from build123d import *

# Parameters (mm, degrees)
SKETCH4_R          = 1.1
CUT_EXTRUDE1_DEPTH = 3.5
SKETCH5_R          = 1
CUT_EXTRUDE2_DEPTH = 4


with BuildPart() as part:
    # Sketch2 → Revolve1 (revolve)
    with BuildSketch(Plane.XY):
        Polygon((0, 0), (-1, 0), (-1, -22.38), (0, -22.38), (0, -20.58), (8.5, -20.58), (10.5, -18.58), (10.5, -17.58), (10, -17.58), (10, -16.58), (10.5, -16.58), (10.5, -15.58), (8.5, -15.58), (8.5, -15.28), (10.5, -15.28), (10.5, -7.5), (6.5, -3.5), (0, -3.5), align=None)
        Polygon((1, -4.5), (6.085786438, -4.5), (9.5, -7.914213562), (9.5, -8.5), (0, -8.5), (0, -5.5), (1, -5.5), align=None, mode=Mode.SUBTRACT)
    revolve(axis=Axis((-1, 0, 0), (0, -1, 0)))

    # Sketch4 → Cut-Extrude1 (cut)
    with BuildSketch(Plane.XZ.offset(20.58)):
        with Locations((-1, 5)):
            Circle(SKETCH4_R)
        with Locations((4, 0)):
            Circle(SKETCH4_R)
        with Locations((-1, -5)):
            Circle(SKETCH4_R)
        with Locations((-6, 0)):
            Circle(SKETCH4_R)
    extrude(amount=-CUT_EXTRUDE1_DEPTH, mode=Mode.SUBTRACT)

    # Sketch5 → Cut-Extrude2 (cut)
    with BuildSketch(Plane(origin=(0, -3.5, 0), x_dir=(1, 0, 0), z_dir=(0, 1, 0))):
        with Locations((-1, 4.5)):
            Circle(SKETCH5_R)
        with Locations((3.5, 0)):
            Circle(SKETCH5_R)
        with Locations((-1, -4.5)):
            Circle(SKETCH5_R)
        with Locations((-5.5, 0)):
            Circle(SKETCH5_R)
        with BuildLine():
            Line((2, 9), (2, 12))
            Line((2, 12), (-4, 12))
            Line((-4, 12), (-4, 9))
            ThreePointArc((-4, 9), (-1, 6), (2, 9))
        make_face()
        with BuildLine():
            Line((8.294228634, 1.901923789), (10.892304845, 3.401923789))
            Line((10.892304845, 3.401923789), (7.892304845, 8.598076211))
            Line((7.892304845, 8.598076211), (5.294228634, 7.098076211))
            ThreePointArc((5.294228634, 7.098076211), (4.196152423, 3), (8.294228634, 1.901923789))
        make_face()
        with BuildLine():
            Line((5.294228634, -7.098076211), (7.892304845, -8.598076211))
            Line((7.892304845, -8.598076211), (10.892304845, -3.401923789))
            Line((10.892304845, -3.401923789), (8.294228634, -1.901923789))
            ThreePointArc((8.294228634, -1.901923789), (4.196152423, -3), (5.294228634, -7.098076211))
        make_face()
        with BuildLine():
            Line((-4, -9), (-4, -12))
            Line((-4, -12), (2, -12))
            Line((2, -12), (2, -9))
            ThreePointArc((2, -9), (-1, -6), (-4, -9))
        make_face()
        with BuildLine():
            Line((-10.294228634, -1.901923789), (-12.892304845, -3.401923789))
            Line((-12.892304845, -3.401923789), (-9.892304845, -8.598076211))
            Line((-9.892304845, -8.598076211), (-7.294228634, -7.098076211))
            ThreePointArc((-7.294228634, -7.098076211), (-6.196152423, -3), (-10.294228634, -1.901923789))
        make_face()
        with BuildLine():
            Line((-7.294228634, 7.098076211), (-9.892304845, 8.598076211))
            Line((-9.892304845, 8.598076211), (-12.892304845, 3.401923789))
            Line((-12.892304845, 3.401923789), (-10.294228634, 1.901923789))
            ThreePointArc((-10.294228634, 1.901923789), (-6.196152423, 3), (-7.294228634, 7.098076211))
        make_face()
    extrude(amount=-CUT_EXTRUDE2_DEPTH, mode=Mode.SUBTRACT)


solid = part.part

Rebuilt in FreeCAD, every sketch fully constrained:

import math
import FreeCAD as App
import Part
import Sketcher
from FreeCAD import Vector
Q = App.Units.Quantity


def add_polygon(sketch, points):
    """Adds a closed chain of lines whose ends are joined by coincident constraints."""
    first, n = sketch.GeometryCount, len(points)
    for a, b in zip(points, points[1:] + points[:1]):
        sketch.addGeometry(Part.LineSegment(App.Vector(*a, 0), App.Vector(*b, 0)), False)
    for i in range(n):
        sketch.addConstraint(Sketcher.Constraint("Coincident", first + i, 2, first + (i + 1) % n, 1))

doc = App.newDocument("Part")
body = doc.addObject("PartDesign::Body", "Body")

sketch1 = body.newObject("Sketcher::SketchObject", "Sketch")
sketch1.AttachmentSupport = (doc.getObject("XY_Plane"), [""])
sketch1.MapMode = "FlatFace"
add_polygon(sketch1, [(0, 0), (-1, 0), (-1, -22.38), (0, -22.38), (0, -20.58), (8.5, -20.58), (10.5, -18.58), (10.5, -17.58), (10, -17.58), (10, -16.58), (10.5, -16.58), (10.5, -15.58), (8.5, -15.58), (8.5, -15.28), (10.5, -15.28), (10.5, -7.5), (6.5, -3.5), (0, -3.5)])
add_polygon(sketch1, [(1, -5.5), (1, -4.5), (6.085786, -4.5), (9.5, -7.914214), (9.5, -8.5), (0, -8.5), (0, -5.5)])
sketch1.addGeometry(Part.LineSegment(Vector(-1, 0, 0), Vector(-1, -22.38, 0)), True)
sketch1.addConstraint([
    Sketcher.Constraint("Horizontal", 0),
    Sketcher.Constraint("Vertical", 1),
    Sketcher.Constraint("Horizontal", 2),
    Sketcher.Constraint("Vertical", 3),
    Sketcher.Constraint("Horizontal", 4),
    Sketcher.Constraint("Vertical", 6),
    Sketcher.Constraint("Horizontal", 7),
    Sketcher.Constraint("Vertical", 8),
    Sketcher.Constraint("Horizontal", 9),
    Sketcher.Constraint("Vertical", 10),
    Sketcher.Constraint("Horizontal", 11),
    Sketcher.Constraint("Vertical", 12),
    Sketcher.Constraint("Horizontal", 13),
    Sketcher.Constraint("Vertical", 14),
    Sketcher.Constraint("Horizontal", 16),
    Sketcher.Constraint("Vertical", 17),
    Sketcher.Constraint("Vertical", 18),
    Sketcher.Constraint("Horizontal", 19),
    Sketcher.Constraint("Vertical", 21),
    Sketcher.Constraint("Horizontal", 22),
    Sketcher.Constraint("Vertical", 23),
    Sketcher.Constraint("Horizontal", 24),
    Sketcher.Constraint("Vertical", 25),
    Sketcher.Constraint("Coincident", 17, 2, -1, 1),
    Sketcher.Constraint("Coincident", 25, 1, 0, 2),
    Sketcher.Constraint("PointOnObject", 2, 2, -2),
    Sketcher.Constraint("PointOnObject", 22, 2, -2),
    Sketcher.Constraint("Perpendicular", 5, 15),
    Sketcher.Constraint("Parallel", 15, 20),
    Sketcher.Constraint("Horizontal", 2, 2, 25, 2),
    Sketcher.Constraint("Vertical", 6, 2, 9, 2),
    Sketcher.Constraint("Vertical", 4, 2, 11, 2),
    Sketcher.Constraint("Vertical", 10, 2, 13, 2),
    Sketcher.Constraint("Equal", 2, 24),
    Sketcher.Constraint("Equal", 24, 6),
    Sketcher.Constraint("Equal", 6, 8),
    Sketcher.Constraint("Equal", 8, 10),
    Sketcher.Constraint("Equal", 10, 18),
    Sketcher.Constraint("DistanceX", 0, 2, 0, 1, Q("1 mm")),
    Sketcher.Constraint("DistanceX", 11, 2, 11, 1, Q("2 mm")),
    Sketcher.Constraint("DistanceY", 23, 1, 23, 2, Q("3 mm")),
    Sketcher.Constraint("Angle", 5, Q("45 deg")),
    Sketcher.Constraint("DistanceX", 4, 1, 4, 2, Q("8.5 mm")),
    Sketcher.Constraint("DistanceX", 7, 2, 7, 1, Q("0.5 mm")),
    Sketcher.Constraint("DistanceX", 16, 2, 16, 1, Q("6.5 mm")),
    Sketcher.Constraint("DistanceX", 22, 2, 22, 1, Q("9.5 mm")),
    Sketcher.Constraint("DistanceY", 3, 1, 3, 2, Q("1.8 mm")),
    Sketcher.Constraint("DistanceY", 12, 1, 12, 2, Q("0.3 mm")),
    Sketcher.Constraint("DistanceY", 17, 1, 17, 2, Q("3.5 mm")),
    Sketcher.Constraint("DistanceY", 18, 2, 16, 2, Q("1 mm")),
    Sketcher.Constraint("DistanceY", 1, 2, 1, 1, Q("22.38 mm")),
    Sketcher.Constraint("DistanceX", 19, 1, 19, 2, Q("5.085786 mm")),
])
revolution = body.newObject("PartDesign::Revolution", "Revolution")
revolution.Profile = sketch1
revolution.ReferenceAxis = (sketch1, ["Axis0"])
revolution.Angle = 360

sketch2 = body.newObject("Sketcher::SketchObject", "Sketch001")
sketch2.AttachmentSupport = (doc.getObject("XZ_Plane"), [""])
sketch2.MapMode = "FlatFace"
sketch2.AttachmentOffset = App.Placement(Vector(0, 0, 20.58), App.Rotation())
sketch2.addGeometry([
    Part.Circle(Vector(-1, 5, 0), Vector(0, 0, 1), 1.1),
    Part.Circle(Vector(4, 0, 0), Vector(0, 0, 1), 1.1),
    Part.Circle(Vector(-1, -5, 0), Vector(0, 0, 1), 1.1),
    Part.Circle(Vector(-6, 0, 0), Vector(0, 0, 1), 1.1),
], False)
sketch2.addConstraint([
    Sketcher.Constraint("Equal", 0, 1),
    Sketcher.Constraint("Equal", 1, 2),
    Sketcher.Constraint("Equal", 2, 3),
    Sketcher.Constraint("Symmetric", 0, 3, 2, 3, -1),
    Sketcher.Constraint("PointOnObject", 1, 3, -1),
    Sketcher.Constraint("PointOnObject", 3, 3, -1),
    Sketcher.Constraint("Diameter", 0, Q("2.2 mm")),
    Sketcher.Constraint("DistanceX", 0, 3, -1, 1, Q("1 mm")),
    Sketcher.Constraint("DistanceY", -1, 1, 0, 3, Q("5 mm")),
    Sketcher.Constraint("DistanceX", -1, 1, 1, 3, Q("4 mm")),
    Sketcher.Constraint("DistanceX", 3, 3, -1, 1, Q("6 mm")),
])
pocket1 = body.newObject("PartDesign::Pocket", "Pocket")
pocket1.Profile = sketch2
pocket1.Length = 3.5

sketch3 = body.newObject("Sketcher::SketchObject", "Sketch002")
sketch3.AttachmentSupport = (doc.getObject("XZ_Plane"), [""])
sketch3.MapMode = "FlatFace"
sketch3.AttachmentOffset = App.Placement(Vector(0, 0, 3.5), App.Rotation())
sketch3.addGeometry([
    Part.Circle(Vector(-1, -4.5, 0), Vector(0, 0, 1), 1),
    Part.Circle(Vector(3.5, 0, 0), Vector(0, 0, 1), 1),
    Part.Circle(Vector(-1, 4.5, 0), Vector(0, 0, 1), 1),
    Part.Circle(Vector(-5.5, 0, 0), Vector(0, 0, 1), 1),
    Part.LineSegment(Vector(2, -9, 0), Vector(2, -12, 0)),
    Part.LineSegment(Vector(2, -12, 0), Vector(-4, -12, 0)),
    Part.LineSegment(Vector(-4, -12, 0), Vector(-4, -9, 0)),
    Part.ArcOfCircle(Part.Circle(Vector(-1, -9, 0), Vector(0, 0, 1), 3), math.radians(0), math.radians(180)),
    Part.LineSegment(Vector(8.294229, -1.901924, 0), Vector(10.892305, -3.401924, 0)),
    Part.LineSegment(Vector(10.892305, -3.401924, 0), Vector(7.892305, -8.598076, 0)),
    Part.LineSegment(Vector(7.892305, -8.598076, 0), Vector(5.294229, -7.098076, 0)),
    Part.ArcOfCircle(Part.Circle(Vector(6.794229, -4.5, 0), Vector(0, 0, 1), 3), math.radians(60), math.radians(240)),
    Part.LineSegment(Vector(5.294229, 7.098076, 0), Vector(7.892305, 8.598076, 0)),
    Part.LineSegment(Vector(7.892305, 8.598076, 0), Vector(10.892305, 3.401924, 0)),
    Part.LineSegment(Vector(10.892305, 3.401924, 0), Vector(8.294229, 1.901924, 0)),
    Part.ArcOfCircle(Part.Circle(Vector(6.794229, 4.5, 0), Vector(0, 0, 1), 3), math.radians(120), math.radians(300)),
    Part.LineSegment(Vector(-4, 9, 0), Vector(-4, 12, 0)),
    Part.LineSegment(Vector(-4, 12, 0), Vector(2, 12, 0)),
    Part.LineSegment(Vector(2, 12, 0), Vector(2, 9, 0)),
    Part.ArcOfCircle(Part.Circle(Vector(-1, 9, 0), Vector(0, 0, 1), 3), math.radians(180), math.radians(360)),
    Part.LineSegment(Vector(-10.294229, 1.901924, 0), Vector(-12.892305, 3.401924, 0)),
    Part.LineSegment(Vector(-12.892305, 3.401924, 0), Vector(-9.892305, 8.598076, 0)),
    Part.LineSegment(Vector(-9.892305, 8.598076, 0), Vector(-7.294229, 7.098076, 0)),
    Part.ArcOfCircle(Part.Circle(Vector(-8.794229, 4.5, 0), Vector(0, 0, 1), 3), math.radians(-120), math.radians(60)),
    Part.LineSegment(Vector(-7.294229, -7.098076, 0), Vector(-9.892305, -8.598076, 0)),
    Part.LineSegment(Vector(-9.892305, -8.598076, 0), Vector(-12.892305, -3.401924, 0)),
    Part.LineSegment(Vector(-12.892305, -3.401924, 0), Vector(-10.294229, -1.901924, 0)),
    Part.ArcOfCircle(Part.Circle(Vector(-8.794229, -4.5, 0), Vector(0, 0, 1), 3), math.radians(-60), math.radians(120)),
], False)
sketch3.addConstraint([
    Sketcher.Constraint("Coincident", 4, 2, 5, 1),
    Sketcher.Constraint("Coincident", 5, 2, 6, 1),
    Sketcher.Constraint("Tangent", 6, 2, 7, 2),
    Sketcher.Constraint("Tangent", 7, 1, 4, 1),
    Sketcher.Constraint("Coincident", 8, 2, 9, 1),
    Sketcher.Constraint("Coincident", 9, 2, 10, 1),
    Sketcher.Constraint("Tangent", 10, 2, 11, 2),
    Sketcher.Constraint("Tangent", 11, 1, 8, 1),
    Sketcher.Constraint("Coincident", 12, 2, 13, 1),
    Sketcher.Constraint("Coincident", 13, 2, 14, 1),
    Sketcher.Constraint("Tangent", 14, 2, 15, 2),
    Sketcher.Constraint("Tangent", 15, 1, 12, 1),
    Sketcher.Constraint("Coincident", 16, 2, 17, 1),
    Sketcher.Constraint("Coincident", 17, 2, 18, 1),
    Sketcher.Constraint("Tangent", 18, 2, 19, 2),
    Sketcher.Constraint("Tangent", 19, 1, 16, 1),
    Sketcher.Constraint("Coincident", 20, 2, 21, 1),
    Sketcher.Constraint("Coincident", 21, 2, 22, 1),
    Sketcher.Constraint("Tangent", 22, 2, 23, 2),
    Sketcher.Constraint("Tangent", 23, 1, 20, 1),
    Sketcher.Constraint("Coincident", 24, 2, 25, 1),
    Sketcher.Constraint("Coincident", 25, 2, 26, 1),
    Sketcher.Constraint("Tangent", 26, 2, 27, 2),
    Sketcher.Constraint("Tangent", 27, 1, 24, 1),
    Sketcher.Constraint("Vertical", 4),
    Sketcher.Constraint("Horizontal", 5),
    Sketcher.Constraint("Vertical", 6),
    Sketcher.Constraint("Vertical", 16),
    Sketcher.Constraint("Horizontal", 17),
    Sketcher.Constraint("Vertical", 18),
    Sketcher.Constraint("Equal", 0, 1),
    Sketcher.Constraint("Equal", 1, 2),
    Sketcher.Constraint("Equal", 2, 3),
    Sketcher.Constraint("Equal", 7, 11),
    Sketcher.Constraint("Equal", 11, 15),
    Sketcher.Constraint("Equal", 15, 19),
    Sketcher.Constraint("Equal", 19, 23),
    Sketcher.Constraint("Equal", 23, 27),
    Sketcher.Constraint("Symmetric", 0, 3, 2, 3, -1),
    Sketcher.Constraint("Symmetric", 11, 3, 15, 3, -1),
    Sketcher.Constraint("Symmetric", 7, 3, 19, 3, -1),
    Sketcher.Constraint("Symmetric", 23, 3, 27, 3, -1),
    Sketcher.Constraint("Symmetric", 9, 2, 12, 2, -1),
    Sketcher.Constraint("Symmetric", 8, 2, 13, 2, -1),
    Sketcher.Constraint("Symmetric", 21, 2, 24, 2, -1),
    Sketcher.Constraint("Symmetric", 20, 2, 25, 2, -1),
    Sketcher.Constraint("PointOnObject", 1, 3, -1),
    Sketcher.Constraint("PointOnObject", 3, 3, -1),
    Sketcher.Constraint("Perpendicular", 8, 9),
    Sketcher.Constraint("Perpendicular", 9, 10),
    Sketcher.Constraint("Parallel", 10, 20),
    Sketcher.Constraint("Perpendicular", 20, 21),
    Sketcher.Constraint("Perpendicular", 21, 22),
    Sketcher.Constraint("Horizontal", 0, 3, 11, 3),
    Sketcher.Constraint("Horizontal", 15, 3, 23, 3),
    Sketcher.Constraint("Horizontal", 13, 2, 20, 2),
    Sketcher.Constraint("Vertical", 2, 3, 7, 3),
    Sketcher.Constraint("Equal", 6, 16),
    Sketcher.Constraint("Diameter", 0, Q("2 mm")),
    Sketcher.Constraint("Radius", 7, Q("3 mm")),
    Sketcher.Constraint("DistanceY", 4, 2, 4, 1, Q("3 mm")),
    Sketcher.Constraint("Angle", 8, Q("-30 deg")),
    Sketcher.Constraint("Distance", 8, Q("3 mm")),
    Sketcher.Constraint("DistanceX", 0, 3, -1, 1, Q("1 mm")),
    Sketcher.Constraint("DistanceY", 7, 3, -1, 1, Q("9 mm")),
    Sketcher.Constraint("DistanceY", 0, 3, 2, 3, Q("9 mm")),
    Sketcher.Constraint("DistanceX", 3, 3, 1, 3, Q("9 mm")),
    Sketcher.Constraint("DistanceX", -1, 1, 1, 3, Q("3.5 mm")),
    Sketcher.Constraint("DistanceX", -1, 1, 11, 3, Q("6.794229 mm")),
    Sketcher.Constraint("DistanceX", 23, 3, -1, 1, Q("8.794229 mm")),
])
pocket2 = body.newObject("PartDesign::Pocket", "Pocket001")
pocket2.Profile = sketch3
pocket2.Length = 4
pocket2.Reversed = True

doc.recompute()
